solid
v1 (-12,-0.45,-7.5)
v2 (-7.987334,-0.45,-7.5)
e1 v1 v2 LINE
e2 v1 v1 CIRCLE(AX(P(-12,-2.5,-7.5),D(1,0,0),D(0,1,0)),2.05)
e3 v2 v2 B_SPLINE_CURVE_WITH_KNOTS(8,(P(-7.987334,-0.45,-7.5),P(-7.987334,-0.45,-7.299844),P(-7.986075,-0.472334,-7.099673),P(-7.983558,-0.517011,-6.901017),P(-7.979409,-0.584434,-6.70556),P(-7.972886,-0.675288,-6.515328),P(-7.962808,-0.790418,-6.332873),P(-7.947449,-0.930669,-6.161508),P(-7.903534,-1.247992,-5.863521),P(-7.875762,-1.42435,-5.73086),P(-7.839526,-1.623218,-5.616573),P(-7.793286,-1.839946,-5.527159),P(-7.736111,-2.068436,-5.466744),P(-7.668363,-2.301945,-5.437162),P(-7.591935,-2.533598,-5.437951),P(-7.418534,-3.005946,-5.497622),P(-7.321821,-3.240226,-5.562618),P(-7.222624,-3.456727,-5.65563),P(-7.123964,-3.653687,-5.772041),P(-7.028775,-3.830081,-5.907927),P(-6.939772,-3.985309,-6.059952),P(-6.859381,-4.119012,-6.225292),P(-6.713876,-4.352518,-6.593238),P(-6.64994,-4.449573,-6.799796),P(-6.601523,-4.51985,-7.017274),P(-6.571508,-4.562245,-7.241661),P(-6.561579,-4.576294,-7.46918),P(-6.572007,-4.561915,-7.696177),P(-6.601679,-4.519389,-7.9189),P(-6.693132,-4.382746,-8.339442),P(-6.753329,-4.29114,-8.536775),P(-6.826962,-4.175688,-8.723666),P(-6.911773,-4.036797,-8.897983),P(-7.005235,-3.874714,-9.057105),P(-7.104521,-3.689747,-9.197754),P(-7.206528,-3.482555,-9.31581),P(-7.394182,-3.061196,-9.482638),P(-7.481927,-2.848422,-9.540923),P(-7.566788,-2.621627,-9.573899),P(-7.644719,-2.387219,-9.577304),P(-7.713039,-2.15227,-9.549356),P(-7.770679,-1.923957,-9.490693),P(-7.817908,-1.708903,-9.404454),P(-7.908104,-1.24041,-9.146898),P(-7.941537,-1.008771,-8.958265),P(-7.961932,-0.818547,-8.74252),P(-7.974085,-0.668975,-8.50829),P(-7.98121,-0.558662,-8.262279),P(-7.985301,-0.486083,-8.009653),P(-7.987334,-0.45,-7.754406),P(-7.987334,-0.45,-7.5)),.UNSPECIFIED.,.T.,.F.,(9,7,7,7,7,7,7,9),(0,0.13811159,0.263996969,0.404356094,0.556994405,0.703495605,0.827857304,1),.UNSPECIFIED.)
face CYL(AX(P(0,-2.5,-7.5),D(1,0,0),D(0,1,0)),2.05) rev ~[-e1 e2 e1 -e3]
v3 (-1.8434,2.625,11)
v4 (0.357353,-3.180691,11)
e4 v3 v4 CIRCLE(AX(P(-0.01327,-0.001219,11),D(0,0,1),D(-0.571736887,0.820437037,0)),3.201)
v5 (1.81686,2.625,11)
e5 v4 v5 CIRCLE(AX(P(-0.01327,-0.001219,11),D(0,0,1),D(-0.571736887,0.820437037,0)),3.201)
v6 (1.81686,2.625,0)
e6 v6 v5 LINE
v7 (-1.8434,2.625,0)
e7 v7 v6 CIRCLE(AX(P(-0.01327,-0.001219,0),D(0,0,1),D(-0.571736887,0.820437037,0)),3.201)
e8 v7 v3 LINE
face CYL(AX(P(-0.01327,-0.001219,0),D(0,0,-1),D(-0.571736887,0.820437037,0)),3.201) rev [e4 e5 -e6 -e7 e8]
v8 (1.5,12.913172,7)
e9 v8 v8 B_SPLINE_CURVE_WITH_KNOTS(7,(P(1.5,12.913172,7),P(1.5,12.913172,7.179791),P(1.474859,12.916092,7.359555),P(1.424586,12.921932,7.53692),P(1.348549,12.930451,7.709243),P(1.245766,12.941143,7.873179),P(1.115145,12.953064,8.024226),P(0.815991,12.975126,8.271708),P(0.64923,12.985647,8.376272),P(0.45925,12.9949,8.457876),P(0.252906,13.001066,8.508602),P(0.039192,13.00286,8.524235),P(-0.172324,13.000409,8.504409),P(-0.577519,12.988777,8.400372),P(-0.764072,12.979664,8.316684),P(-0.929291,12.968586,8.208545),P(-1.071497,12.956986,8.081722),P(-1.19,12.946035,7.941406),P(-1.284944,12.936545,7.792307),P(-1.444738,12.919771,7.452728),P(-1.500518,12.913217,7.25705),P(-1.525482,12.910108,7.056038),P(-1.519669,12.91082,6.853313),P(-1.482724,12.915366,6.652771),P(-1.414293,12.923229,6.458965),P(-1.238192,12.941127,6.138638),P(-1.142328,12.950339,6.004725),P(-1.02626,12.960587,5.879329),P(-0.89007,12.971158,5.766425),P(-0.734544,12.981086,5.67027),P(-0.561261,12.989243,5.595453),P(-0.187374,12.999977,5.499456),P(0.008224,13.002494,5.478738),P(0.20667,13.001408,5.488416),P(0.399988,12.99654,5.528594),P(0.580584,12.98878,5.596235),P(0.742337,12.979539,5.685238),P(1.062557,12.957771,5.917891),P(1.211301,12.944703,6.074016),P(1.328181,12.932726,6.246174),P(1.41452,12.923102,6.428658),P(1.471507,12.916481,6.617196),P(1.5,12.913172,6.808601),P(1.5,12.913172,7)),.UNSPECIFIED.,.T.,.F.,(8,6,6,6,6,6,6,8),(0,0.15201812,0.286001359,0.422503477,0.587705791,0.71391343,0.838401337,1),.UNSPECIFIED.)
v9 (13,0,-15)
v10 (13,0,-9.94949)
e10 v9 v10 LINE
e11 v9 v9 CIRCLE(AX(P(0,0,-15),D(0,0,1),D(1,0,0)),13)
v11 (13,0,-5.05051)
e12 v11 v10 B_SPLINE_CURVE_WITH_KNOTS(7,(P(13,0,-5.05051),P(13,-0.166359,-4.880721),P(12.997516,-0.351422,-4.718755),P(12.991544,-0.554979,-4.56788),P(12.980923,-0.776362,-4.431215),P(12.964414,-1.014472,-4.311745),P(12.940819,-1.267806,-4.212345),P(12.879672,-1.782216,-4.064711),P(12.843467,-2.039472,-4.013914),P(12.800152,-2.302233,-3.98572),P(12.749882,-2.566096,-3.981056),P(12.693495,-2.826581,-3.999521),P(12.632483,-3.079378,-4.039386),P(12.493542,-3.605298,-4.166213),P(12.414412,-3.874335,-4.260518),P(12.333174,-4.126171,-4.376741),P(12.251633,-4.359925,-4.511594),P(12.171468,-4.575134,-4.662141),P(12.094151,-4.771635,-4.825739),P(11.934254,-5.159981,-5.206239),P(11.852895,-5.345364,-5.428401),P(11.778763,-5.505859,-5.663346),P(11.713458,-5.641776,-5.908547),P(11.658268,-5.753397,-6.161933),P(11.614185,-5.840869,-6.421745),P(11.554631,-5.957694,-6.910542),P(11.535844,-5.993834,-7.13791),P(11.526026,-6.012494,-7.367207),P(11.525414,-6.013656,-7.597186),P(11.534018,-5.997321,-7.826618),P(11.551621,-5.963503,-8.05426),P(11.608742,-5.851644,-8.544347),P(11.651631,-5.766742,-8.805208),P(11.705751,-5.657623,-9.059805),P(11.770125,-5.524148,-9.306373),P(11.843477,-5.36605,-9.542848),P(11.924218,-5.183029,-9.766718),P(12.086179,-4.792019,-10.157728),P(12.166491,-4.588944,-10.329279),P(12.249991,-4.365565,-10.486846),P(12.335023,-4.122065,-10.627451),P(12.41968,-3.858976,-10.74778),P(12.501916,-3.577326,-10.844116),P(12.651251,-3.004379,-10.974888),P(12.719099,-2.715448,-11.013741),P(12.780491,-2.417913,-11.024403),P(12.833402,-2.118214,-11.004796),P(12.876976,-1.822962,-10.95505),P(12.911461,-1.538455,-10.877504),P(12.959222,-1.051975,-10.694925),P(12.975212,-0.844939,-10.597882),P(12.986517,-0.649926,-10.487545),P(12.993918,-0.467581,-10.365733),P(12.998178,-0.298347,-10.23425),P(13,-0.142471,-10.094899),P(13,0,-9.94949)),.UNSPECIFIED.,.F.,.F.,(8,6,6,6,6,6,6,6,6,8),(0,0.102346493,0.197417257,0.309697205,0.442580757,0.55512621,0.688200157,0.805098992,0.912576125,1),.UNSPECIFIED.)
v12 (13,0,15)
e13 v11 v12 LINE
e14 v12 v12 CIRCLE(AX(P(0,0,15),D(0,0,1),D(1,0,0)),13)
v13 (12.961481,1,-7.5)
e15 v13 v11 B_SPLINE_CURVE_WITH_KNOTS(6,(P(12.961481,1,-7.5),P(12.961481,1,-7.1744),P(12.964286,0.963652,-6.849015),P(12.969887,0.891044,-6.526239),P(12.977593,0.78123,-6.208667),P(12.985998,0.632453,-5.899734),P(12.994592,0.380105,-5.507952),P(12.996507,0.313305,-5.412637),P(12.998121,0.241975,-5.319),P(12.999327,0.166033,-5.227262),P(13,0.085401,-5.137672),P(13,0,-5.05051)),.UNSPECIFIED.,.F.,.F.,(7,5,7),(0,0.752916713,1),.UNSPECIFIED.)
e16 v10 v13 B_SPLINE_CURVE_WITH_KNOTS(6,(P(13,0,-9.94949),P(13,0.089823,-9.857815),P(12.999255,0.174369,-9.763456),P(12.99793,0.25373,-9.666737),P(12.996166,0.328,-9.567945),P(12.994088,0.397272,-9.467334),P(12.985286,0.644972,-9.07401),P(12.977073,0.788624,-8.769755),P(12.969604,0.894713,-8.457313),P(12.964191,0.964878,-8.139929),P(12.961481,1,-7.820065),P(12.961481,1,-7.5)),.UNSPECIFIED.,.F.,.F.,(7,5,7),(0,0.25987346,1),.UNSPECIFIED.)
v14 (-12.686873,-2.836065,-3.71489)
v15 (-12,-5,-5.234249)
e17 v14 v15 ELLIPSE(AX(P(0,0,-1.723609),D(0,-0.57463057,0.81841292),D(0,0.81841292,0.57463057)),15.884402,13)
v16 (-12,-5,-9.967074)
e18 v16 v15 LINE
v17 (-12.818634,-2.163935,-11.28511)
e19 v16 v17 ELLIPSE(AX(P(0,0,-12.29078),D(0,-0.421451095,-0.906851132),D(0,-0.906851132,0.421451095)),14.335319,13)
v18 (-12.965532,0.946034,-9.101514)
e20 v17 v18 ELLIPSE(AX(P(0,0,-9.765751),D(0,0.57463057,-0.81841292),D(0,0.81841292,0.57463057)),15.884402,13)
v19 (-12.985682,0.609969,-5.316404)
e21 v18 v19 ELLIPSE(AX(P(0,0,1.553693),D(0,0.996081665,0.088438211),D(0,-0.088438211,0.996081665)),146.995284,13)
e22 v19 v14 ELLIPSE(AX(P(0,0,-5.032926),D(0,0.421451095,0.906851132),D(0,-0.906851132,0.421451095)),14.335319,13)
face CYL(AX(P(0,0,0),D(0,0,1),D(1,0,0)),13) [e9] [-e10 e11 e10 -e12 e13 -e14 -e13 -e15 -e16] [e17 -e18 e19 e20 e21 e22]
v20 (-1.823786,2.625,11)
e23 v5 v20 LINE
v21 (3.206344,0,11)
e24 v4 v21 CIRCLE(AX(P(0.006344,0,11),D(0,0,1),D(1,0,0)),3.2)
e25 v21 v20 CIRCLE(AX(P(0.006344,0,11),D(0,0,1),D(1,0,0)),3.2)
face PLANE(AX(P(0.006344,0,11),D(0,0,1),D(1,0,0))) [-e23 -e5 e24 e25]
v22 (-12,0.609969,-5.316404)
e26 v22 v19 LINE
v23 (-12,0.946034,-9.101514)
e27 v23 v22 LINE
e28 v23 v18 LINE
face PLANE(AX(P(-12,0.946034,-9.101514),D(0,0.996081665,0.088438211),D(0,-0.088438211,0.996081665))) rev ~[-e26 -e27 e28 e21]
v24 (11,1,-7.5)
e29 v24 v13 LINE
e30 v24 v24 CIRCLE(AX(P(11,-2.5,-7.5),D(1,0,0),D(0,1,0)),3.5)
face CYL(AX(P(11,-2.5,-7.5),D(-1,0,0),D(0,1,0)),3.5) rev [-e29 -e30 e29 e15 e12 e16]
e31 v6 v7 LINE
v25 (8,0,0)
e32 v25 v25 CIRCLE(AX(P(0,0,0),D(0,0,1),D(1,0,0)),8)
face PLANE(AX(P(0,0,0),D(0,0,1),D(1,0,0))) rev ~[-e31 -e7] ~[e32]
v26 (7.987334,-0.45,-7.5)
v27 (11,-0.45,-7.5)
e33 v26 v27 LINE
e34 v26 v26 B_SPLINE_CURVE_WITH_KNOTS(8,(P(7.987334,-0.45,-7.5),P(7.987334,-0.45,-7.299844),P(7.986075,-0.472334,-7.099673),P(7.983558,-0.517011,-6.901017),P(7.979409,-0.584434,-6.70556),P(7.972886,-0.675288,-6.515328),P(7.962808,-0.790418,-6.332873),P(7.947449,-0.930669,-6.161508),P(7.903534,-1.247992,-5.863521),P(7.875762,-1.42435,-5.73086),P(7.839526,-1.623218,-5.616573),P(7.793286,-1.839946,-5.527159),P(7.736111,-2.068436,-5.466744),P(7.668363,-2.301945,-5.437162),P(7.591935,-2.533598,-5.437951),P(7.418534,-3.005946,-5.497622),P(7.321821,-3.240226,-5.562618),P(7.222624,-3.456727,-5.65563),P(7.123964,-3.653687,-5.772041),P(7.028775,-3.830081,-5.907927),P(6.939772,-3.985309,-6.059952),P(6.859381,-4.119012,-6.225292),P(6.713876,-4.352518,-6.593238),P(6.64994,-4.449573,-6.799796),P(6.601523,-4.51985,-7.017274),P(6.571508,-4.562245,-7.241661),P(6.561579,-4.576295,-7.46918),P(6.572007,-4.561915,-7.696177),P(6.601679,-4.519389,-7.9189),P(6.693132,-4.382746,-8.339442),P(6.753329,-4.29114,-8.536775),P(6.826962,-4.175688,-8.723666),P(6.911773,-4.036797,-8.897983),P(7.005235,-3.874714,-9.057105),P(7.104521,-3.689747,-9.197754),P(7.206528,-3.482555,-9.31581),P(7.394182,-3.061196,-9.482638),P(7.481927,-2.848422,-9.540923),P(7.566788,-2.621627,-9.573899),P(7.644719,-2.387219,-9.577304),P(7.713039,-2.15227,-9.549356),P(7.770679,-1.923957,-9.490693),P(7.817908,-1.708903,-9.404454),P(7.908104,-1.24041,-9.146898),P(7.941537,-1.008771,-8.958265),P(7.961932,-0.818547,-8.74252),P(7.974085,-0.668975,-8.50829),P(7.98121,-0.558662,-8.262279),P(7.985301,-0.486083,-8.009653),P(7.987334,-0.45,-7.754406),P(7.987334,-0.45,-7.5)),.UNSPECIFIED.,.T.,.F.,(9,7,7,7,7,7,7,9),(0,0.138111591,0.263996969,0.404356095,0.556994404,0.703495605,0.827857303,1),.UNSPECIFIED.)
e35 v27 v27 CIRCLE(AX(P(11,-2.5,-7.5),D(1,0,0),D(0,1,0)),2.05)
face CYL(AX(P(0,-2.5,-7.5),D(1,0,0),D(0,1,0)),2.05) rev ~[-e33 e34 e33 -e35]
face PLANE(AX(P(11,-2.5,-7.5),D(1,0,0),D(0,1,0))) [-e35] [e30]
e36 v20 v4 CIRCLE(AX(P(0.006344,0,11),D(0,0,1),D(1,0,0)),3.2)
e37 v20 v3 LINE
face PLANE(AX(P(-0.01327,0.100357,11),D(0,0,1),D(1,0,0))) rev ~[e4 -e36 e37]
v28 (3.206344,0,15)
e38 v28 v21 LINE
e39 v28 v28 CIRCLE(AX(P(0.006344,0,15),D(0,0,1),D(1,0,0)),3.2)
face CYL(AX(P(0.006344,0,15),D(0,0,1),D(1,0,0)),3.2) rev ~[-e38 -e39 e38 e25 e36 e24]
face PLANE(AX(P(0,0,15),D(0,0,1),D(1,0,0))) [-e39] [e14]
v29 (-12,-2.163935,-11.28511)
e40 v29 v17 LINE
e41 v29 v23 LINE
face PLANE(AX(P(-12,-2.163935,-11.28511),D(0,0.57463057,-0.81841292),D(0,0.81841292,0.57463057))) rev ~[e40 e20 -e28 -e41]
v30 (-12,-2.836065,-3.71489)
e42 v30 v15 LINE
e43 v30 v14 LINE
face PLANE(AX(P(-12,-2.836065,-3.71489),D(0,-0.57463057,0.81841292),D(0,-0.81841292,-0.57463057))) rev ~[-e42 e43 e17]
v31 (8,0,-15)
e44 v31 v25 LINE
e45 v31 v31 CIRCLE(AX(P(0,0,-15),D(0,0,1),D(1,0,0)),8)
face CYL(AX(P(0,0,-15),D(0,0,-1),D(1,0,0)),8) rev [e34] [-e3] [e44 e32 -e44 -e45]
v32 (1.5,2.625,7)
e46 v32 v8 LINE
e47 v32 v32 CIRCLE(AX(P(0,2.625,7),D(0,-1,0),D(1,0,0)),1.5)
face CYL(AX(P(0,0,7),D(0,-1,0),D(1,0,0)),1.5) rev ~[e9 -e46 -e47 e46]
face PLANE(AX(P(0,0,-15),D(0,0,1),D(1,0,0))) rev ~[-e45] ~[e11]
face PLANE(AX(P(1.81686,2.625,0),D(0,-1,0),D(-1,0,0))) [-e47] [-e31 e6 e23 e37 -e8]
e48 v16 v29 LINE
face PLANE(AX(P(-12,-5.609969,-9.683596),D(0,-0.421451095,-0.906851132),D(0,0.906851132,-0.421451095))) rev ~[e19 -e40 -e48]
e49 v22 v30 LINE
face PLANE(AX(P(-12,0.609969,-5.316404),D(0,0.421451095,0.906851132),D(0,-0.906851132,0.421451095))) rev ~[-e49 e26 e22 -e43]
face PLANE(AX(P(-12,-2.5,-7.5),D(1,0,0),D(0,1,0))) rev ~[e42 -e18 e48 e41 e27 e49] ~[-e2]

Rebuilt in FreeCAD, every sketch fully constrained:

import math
import FreeCAD as App
import Part
import Sketcher
from FreeCAD import Vector
Q = App.Units.Quantity


def add_polygon(sketch, points):
    """Adds a closed chain of lines whose ends are joined by coincident constraints."""
    first, n = sketch.GeometryCount, len(points)
    for a, b in zip(points, points[1:] + points[:1]):
        sketch.addGeometry(Part.LineSegment(App.Vector(*a, 0), App.Vector(*b, 0)), False)
    for i in range(n):
        sketch.addConstraint(Sketcher.Constraint("Coincident", first + i, 2, first + (i + 1) % n, 1))

doc = App.newDocument("Part")
body = doc.addObject("PartDesign::Body", "Body")

sketch1 = doc.addObject("Sketcher::SketchObject", "Sketch")
body.addObject(sketch1)
sketch1.AttachmentSupport = (doc.XY_Plane, [""])
sketch1.MapMode = "FlatFace"
sketch1.addGeometry(Part.Circle(Vector(0, 0, 0), Vector(0, 0, 1), 13), False)
sketch1.addConstraint(Sketcher.Constraint("Coincident", 0, 3, -1, 1))
sketch1.addConstraint(Sketcher.Constraint("Diameter", 0, Q("26 mm")))
pad1 = doc.addObject("PartDesign::Pad", "Pad")
body.addObject(pad1)
pad1.Profile = sketch1
pad1.Length = 30
pad1.Midplane = True

sketch2 = doc.addObject("Sketcher::SketchObject", "Sketch001")
body.addObject(sketch2)
sketch2.AttachmentSupport = (doc.XY_Plane, [""])
sketch2.MapMode = "FlatFace"
sketch2.AttachmentOffset = App.Placement(Vector(0, 0, -15), App.Rotation())
sketch2.addGeometry(Part.Circle(Vector(0, 0, 0), Vector(0, 0, 1), 8), False)
sketch2.addConstraint(Sketcher.Constraint("Coincident", 0, 3, -1, 1))
sketch2.addConstraint(Sketcher.Constraint("Diameter", 0, Q("16 mm")))
pocket1 = doc.addObject("PartDesign::Pocket", "Pocket")
body.addObject(pocket1)
pocket1.Profile = sketch2
pocket1.Length = 15
pocket1.Reversed = True

sketch3 = doc.addObject("Sketcher::SketchObject", "Sketch002")
body.addObject(sketch3)
sketch3.AttachmentSupport = (doc.XY_Plane, [""])
sketch3.MapMode = "FlatFace"
sketch3.AttachmentOffset = App.Placement(Vector(0, 0, 15), App.Rotation())
sketch3.addGeometry(Part.Circle(Vector(0.006344, 0, 0), Vector(0, 0, 1), 3.2), False)
sketch3.addConstraint(Sketcher.Constraint("PointOnObject", 0, 3, -1))
sketch3.addConstraint(Sketcher.Constraint("Diameter", 0, Q("6.4 mm")))
sketch3.addConstraint(Sketcher.Constraint("DistanceX", -1, 1, 0, 3, Q("0.006344 mm")))
pocket2 = doc.addObject("PartDesign::Pocket", "Pocket001")
body.addObject(pocket2)
pocket2.Profile = sketch3
pocket2.Length = 4

sketch4 = doc.addObject("Sketcher::SketchObject", "Sketch003")
body.addObject(sketch4)
sketch4.AttachmentSupport = (doc.XY_Plane, [""])
sketch4.MapMode = "FlatFace"
sketch4.addGeometry(Part.LineSegment(Vector(1.81686, 2.625, 0), Vector(-1.8434, 2.625, 0)), False)
sketch4.addGeometry(Part.ArcOfCircle(Part.Circle(Vector(-0.01327, -0.001219, 0), Vector(0, 0, 1), 3.201), math.radians(124.871433), math.radians(415.128567)), False)
sketch4.addConstraint(Sketcher.Constraint("Coincident", 0, 1, 1, 2))
sketch4.addConstraint(Sketcher.Constraint("Coincident", 1, 1, 0, 2))
sketch4.addConstraint(Sketcher.Constraint("Horizontal", 0))
sketch4.addConstraint(Sketcher.Constraint("Radius", 1, Q("3.201 mm")))
sketch4.addConstraint(Sketcher.Constraint("DistanceY", -1, 1, 0, 1, Q("2.625 mm")))
sketch4.addConstraint(Sketcher.Constraint("DistanceX", 0, 2, 0, 1, Q("3.66026 mm")))
sketch4.addConstraint(Sketcher.Constraint("DistanceX", 1, 1, -1, 1, Q("1.8434 mm")))
pocket3 = doc.addObject("PartDesign::Pocket", "Pocket002")
body.addObject(pocket3)
pocket3.Profile = sketch4
pocket3.Length = 11
pocket3.Reversed = True

sketch5 = doc.addObject("Sketcher::SketchObject", "Sketch004")
body.addObject(sketch5)
sketch5.AttachmentSupport = (doc.YZ_Plane, [""])
sketch5.MapMode = "FlatFace"
sketch5.addGeometry(Part.Circle(Vector(-2.5, -7.5, 0), Vector(0, 0, 1), 2.05), False)
sketch5.addConstraint(Sketcher.Constraint("Diameter", 0, Q("4.1 mm")))
sketch5.addConstraint(Sketcher.Constraint("DistanceX", 0, 3, -1, 1, Q("2.5 mm")))
sketch5.addConstraint(Sketcher.Constraint("DistanceY", 0, 3, -1, 1, Q("7.5 mm")))
pocket4 = doc.addObject("PartDesign::Pocket", "Pocket003")
body.addObject(pocket4)
pocket4.Profile = sketch5
pocket4.Length = 30
pocket4.Midplane = True

sketch6 = doc.addObject("Sketcher::SketchObject", "Sketch005")
body.addObject(sketch6)
sketch6.AttachmentSupport = (doc.XZ_Plane, [""])
sketch6.MapMode = "FlatFace"
sketch6.addGeometry(Part.Circle(Vector(0, 7, 0), Vector(0, 0, 1), 1.5), False)
sketch6.addConstraint(Sketcher.Constraint("PointOnObject", 0, 3, -2))
sketch6.addConstraint(Sketcher.Constraint("Diameter", 0, Q("3 mm")))
sketch6.addConstraint(Sketcher.Constraint("DistanceY", -1, 1, 0, 3, Q("7 mm")))
pocket5 = doc.addObject("PartDesign::Pocket", "Pocket004")
body.addObject(pocket5)
pocket5.Profile = sketch6
pocket5.Length = 25

sketch7 = doc.addObject("Sketcher::SketchObject", "Sketch006")
body.addObject(sketch7)
sketch7.AttachmentSupport = (doc.YZ_Plane, [""])
sketch7.MapMode = "FlatFace"
sketch7.AttachmentOffset = App.Placement(Vector(0, 0, 11), App.Rotation())
sketch7.addGeometry(Part.Circle(Vector(-2.5, -7.5, 0), Vector(0, 0, 1), 3.5), False)
sketch7.addConstraint(Sketcher.Constraint("Diameter", 0, Q("7 mm")))
sketch7.addConstraint(Sketcher.Constraint("DistanceX", 0, 3, -1, 1, Q("2.5 mm")))
sketch7.addConstraint(Sketcher.Constraint("DistanceY", 0, 3, -1, 1, Q("7.5 mm")))
pocket6 = doc.addObject("PartDesign::Pocket", "Pocket005")
body.addObject(pocket6)
pocket6.Profile = sketch7
pocket6.Length = 5
pocket6.Reversed = True

sketch8 = doc.addObject("Sketcher::SketchObject", "Sketch007")
body.addObject(sketch8)
sketch8.AttachmentSupport = (doc.YZ_Plane, [""])
sketch8.MapMode = "FlatFace"
sketch8.AttachmentOffset = App.Placement(Vector(0, 0, -12), App.Rotation())
add_polygon(sketch8, [(-5.946034, -5.898486), (-5.609969, -9.683596), (-2.163935, -11.28511), (0.946034, -9.101514), (0.609969, -5.316404), (-2.836065, -3.71489)])
sketch8.addConstraint(Sketcher.Constraint("Parallel", 0, 3))
sketch8.addConstraint(Sketcher.Constraint("Parallel", 1, 4))
sketch8.addConstraint(Sketcher.Constraint("Parallel", 2, 5))
sketch8.addConstraint(Sketcher.Constraint("Equal", 0, 1))
sketch8.addConstraint(Sketcher.Constraint("Equal", 1, 2))
sketch8.addConstraint(Sketcher.Constraint("Equal", 2, 3))
sketch8.addConstraint(Sketcher.Constraint("Distance", 0, Q("3.8 mm")))
sketch8.addConstraint(Sketcher.Constraint("DistanceX", 4, 2, 2, 2, Q("3.7821 mm")))
sketch8.addConstraint(Sketcher.Constraint("DistanceX", 0, 2, -1, 1, Q("5.609969 mm")))
sketch8.addConstraint(Sketcher.Constraint("DistanceY", 1, 2, -1, 1, Q("11.28511 mm")))
sketch8.addConstraint(Sketcher.Constraint("DistanceX", -1, 1, 3, 2, Q("0.609969 mm")))
sketch8.addConstraint(Sketcher.Constraint("DistanceY", 4, 2, -1, 1, Q("3.71489 mm")))
pocket7 = doc.addObject("PartDesign::Pocket", "Pocket006")
body.addObject(pocket7)
pocket7.Profile = sketch8
pocket7.Length = 3

doc.recompute()
